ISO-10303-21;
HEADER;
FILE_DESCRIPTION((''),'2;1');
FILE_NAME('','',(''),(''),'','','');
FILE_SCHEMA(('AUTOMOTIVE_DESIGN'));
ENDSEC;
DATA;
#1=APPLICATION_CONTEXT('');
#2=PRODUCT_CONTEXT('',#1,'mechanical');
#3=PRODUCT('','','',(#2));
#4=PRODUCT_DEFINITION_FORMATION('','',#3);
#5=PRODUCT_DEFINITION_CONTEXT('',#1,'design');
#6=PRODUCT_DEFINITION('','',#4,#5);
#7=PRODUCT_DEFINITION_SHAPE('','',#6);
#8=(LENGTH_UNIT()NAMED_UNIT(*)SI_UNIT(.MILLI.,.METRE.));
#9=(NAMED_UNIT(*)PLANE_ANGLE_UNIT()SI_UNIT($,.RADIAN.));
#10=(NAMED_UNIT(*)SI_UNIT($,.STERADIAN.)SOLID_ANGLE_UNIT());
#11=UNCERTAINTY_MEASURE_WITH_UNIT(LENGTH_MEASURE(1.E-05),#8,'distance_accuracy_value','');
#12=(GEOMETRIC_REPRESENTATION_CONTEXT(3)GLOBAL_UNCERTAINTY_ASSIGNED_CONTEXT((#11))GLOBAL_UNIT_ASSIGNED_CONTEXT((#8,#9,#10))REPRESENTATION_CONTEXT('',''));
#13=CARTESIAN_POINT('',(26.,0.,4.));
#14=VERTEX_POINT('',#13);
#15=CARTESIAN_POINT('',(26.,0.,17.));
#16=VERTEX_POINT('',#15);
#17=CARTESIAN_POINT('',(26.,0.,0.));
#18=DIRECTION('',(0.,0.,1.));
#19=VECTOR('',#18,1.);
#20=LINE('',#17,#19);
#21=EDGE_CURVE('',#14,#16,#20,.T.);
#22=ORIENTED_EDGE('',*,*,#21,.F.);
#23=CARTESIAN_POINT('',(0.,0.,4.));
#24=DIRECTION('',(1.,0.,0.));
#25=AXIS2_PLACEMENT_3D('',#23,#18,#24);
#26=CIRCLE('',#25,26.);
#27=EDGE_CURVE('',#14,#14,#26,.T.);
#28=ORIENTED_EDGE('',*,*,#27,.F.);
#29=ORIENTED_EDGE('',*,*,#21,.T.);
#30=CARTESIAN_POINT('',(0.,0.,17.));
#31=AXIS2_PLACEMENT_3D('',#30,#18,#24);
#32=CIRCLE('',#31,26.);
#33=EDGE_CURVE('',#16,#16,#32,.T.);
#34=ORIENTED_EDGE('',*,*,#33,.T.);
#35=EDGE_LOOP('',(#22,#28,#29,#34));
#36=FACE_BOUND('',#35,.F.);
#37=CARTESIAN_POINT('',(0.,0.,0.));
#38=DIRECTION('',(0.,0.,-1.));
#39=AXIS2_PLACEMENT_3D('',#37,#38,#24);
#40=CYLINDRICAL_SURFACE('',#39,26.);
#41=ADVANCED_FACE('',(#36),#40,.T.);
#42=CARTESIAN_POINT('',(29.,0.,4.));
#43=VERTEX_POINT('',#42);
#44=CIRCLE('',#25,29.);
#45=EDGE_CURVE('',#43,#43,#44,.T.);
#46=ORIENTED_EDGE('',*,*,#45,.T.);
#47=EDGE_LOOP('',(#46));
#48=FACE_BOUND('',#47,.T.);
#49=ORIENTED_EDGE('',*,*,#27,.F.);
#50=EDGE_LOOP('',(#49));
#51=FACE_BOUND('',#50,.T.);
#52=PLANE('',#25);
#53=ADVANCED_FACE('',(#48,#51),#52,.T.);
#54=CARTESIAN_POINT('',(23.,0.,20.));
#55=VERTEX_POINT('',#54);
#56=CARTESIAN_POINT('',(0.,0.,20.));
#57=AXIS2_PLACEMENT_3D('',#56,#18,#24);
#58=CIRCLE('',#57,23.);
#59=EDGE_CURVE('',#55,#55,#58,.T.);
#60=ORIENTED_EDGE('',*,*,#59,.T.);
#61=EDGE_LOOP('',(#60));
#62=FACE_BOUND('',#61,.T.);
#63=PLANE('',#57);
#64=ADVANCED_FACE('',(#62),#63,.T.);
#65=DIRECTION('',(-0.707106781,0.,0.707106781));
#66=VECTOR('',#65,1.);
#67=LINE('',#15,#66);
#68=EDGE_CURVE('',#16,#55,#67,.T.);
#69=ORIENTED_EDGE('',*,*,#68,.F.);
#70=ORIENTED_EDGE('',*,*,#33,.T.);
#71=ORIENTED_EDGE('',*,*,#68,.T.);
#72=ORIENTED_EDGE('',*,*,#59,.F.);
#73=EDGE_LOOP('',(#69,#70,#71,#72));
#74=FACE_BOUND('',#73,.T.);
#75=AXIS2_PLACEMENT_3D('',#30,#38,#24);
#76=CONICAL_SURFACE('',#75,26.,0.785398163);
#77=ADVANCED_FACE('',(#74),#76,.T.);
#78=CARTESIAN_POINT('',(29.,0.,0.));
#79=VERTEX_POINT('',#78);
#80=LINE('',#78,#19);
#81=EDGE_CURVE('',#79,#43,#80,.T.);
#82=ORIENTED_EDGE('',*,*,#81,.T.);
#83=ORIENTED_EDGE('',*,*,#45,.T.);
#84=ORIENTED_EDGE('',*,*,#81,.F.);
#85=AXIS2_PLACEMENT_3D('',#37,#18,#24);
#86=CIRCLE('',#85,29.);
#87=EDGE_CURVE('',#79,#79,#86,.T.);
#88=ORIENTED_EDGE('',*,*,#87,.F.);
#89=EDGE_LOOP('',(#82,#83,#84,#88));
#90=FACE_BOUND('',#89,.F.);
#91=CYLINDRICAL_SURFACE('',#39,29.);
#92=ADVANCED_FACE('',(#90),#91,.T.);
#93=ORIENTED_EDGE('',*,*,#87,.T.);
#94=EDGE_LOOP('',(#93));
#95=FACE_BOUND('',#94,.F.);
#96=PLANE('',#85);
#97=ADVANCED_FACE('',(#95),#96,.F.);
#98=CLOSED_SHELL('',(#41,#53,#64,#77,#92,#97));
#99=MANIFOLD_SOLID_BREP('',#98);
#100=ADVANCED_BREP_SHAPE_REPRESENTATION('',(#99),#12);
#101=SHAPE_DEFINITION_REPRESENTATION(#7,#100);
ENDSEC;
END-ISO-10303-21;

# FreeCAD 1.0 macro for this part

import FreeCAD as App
import Part
import Sketcher

V = App.Vector


def edges_at(feature, points):
    """Names of the edges that pass closest to the given points."""
    edges = feature.Shape.Edges
    near = lambda p: min(range(len(edges)), key=lambda i: edges[i].distToShape(Part.Vertex(*p))[0])
    return sorted({f"Edge{near(p) + 1}" for p in points})

doc = App.newDocument("Part")
body = doc.addObject("PartDesign::Body", "Body")

# Sketch on XY plane
sketch1 = body.newObject("Sketcher::SketchObject", "Sketch")
sketch1.AttachmentSupport = (doc.getObject("XY_Plane"), [""])
sketch1.MapMode = "FlatFace"
sketch1.addGeometry(Part.Circle(V(0, 0, 0), V(0, 0, 1), 26), False)
sketch1.addConstraint(Sketcher.Constraint("Coincident", 0, 3, -1, 1))
sketch1.addConstraint(Sketcher.Constraint("Diameter", 0, 52.0))
pad1 = body.newObject("PartDesign::Pad", "Pad")
pad1.Profile = sketch1
pad1.Length = 20

# Sketch on XY plane
sketch2 = body.newObject("Sketcher::SketchObject", "Sketch001")
sketch2.AttachmentSupport = (doc.getObject("XY_Plane"), [""])
sketch2.MapMode = "FlatFace"
sketch2.addGeometry(Part.Circle(V(0, 0, 0), V(0, 0, 1), 29), False)
sketch2.addGeometry(Part.Circle(V(0, 0, 0), V(0, 0, 1), 26), False)
sketch2.addConstraint(Sketcher.Constraint("Coincident", 0, 3, -1, 1))
sketch2.addConstraint(Sketcher.Constraint("Coincident", 1, 3, -1, 1))
sketch2.addConstraint(Sketcher.Constraint("Diameter", 0, 58.0))
sketch2.addConstraint(Sketcher.Constraint("Diameter", 1, 52.0))
pad2 = body.newObject("PartDesign::Pad", "Pad001")
pad2.Profile = sketch2
pad2.Length = 4
doc.recompute()

chamfer = body.newObject("PartDesign::Chamfer", "Chamfer")
chamfer.Base = (pad2, edges_at(pad2, [(-26, 0, 20)]))
chamfer.Size = 3

doc.recompute()
